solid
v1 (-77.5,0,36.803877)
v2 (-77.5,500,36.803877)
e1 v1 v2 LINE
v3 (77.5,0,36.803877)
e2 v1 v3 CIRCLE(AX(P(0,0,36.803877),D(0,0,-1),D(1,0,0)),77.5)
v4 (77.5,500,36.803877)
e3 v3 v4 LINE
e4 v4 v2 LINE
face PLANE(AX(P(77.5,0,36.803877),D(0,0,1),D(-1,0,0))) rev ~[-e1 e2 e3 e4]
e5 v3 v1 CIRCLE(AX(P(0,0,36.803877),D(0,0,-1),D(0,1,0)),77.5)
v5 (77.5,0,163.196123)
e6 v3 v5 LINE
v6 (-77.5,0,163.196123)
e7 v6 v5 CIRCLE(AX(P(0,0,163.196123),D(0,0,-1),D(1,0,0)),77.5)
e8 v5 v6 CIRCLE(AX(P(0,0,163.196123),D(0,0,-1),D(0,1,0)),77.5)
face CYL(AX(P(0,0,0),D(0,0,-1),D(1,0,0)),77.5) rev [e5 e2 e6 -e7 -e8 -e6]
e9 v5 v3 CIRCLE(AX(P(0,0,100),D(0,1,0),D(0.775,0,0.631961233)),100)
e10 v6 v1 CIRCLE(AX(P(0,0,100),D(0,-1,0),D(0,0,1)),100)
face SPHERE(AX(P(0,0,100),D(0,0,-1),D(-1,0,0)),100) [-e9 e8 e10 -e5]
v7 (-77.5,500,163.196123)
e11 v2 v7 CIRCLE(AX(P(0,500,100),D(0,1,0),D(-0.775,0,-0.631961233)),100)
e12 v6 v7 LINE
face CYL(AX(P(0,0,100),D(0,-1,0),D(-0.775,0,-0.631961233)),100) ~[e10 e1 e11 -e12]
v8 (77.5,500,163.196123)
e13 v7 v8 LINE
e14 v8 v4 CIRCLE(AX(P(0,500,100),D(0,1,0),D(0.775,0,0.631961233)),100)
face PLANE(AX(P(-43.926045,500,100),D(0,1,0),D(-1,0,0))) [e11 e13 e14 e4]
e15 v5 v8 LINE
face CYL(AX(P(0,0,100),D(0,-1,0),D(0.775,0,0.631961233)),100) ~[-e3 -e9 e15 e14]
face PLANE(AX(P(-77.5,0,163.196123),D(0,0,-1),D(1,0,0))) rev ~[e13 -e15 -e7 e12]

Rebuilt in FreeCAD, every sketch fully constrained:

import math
import FreeCAD as App
import Part
import Sketcher
from FreeCAD import Vector
Q = App.Units.Quantity

doc = App.newDocument("Part")
body = doc.addObject("PartDesign::Body", "Body")

# Sketch on XZ plane
sketch1 = body.newObject("Sketcher::SketchObject", "Sketch")
sketch1.AttachmentSupport = (doc.getObject("XZ_Plane"), [""])
sketch1.MapMode = "FlatFace"
sketch1.addGeometry([
    Part.LineSegment(Vector(0, 0, 0), Vector(0, 200, 0)),
    Part.ArcOfCircle(Part.Circle(Vector(0, 100, 0), Vector(0, 0, 1), 100), math.radians(90), math.radians(270)),
], False)
sketch1.addConstraint([
    Sketcher.Constraint("Coincident", 0, 1, 1, 2),
    Sketcher.Constraint("Coincident", 1, 1, 0, 2),
    Sketcher.Constraint("Vertical", 0),
    Sketcher.Constraint("Coincident", 0, 1, -1, 1),
    Sketcher.Constraint("PointOnObject", 1, 3, -2),
    Sketcher.Constraint("Radius", 1, Q("100 mm")),
])
revolution = body.newObject("PartDesign::Revolution", "Revolution")
revolution.Profile = sketch1
revolution.ReferenceAxis = (sketch1, ["V_Axis"])
revolution.Angle = 360

# Sketch on XY plane
sketch2 = body.newObject("Sketcher::SketchObject", "Sketch001")
sketch2.AttachmentSupport = (doc.getObject("XY_Plane"), [""])
sketch2.MapMode = "FlatFace"
sketch2.AttachmentOffset = App.Placement(Vector(0, 0, -25), App.Rotation())
sketch2.addGeometry(Part.Circle(Vector(0, 0, 0), Vector(0, 0, 1), 77.5), False)
sketch2.addConstraint([
    Sketcher.Constraint("Coincident", 0, 3, -1, 1),
    Sketcher.Constraint("Diameter", 0, Q("155 mm")),
])
pocket1 = body.newObject("PartDesign::Pocket", "Pocket")
pocket1.Profile = sketch2
pocket1.Type = "ThroughAll"
pocket1.Reversed = True

# Sketch on XZ plane
sketch3 = body.newObject("Sketcher::SketchObject", "Sketch002")
sketch3.AttachmentSupport = (doc.getObject("XZ_Plane"), [""])
sketch3.MapMode = "FlatFace"
sketch3.addGeometry([
    Part.ArcOfCircle(Part.Circle(Vector(0, 100, 0), Vector(0, 0, 1), 100), math.radians(140.805033), math.radians(219.194967)),
    Part.LineSegment(Vector(-77.5, 163.196123, 0), Vector(77.5, 163.196123, 0)),
    Part.ArcOfCircle(Part.Circle(Vector(0, 100, 0), Vector(0, 0, 1), 100), math.radians(-39.194967), math.radians(39.194967)),
    Part.LineSegment(Vector(77.5, 36.803877, 0), Vector(-77.5, 36.803877, 0)),
], False)
sketch3.addConstraint([
    Sketcher.Constraint("Coincident", 0, 1, 1, 1),
    Sketcher.Constraint("Coincident", 1, 2, 2, 2),
    Sketcher.Constraint("Coincident", 2, 1, 3, 1),
    Sketcher.Constraint("Coincident", 3, 2, 0, 2),
    Sketcher.Constraint("Horizontal", 1),
    Sketcher.Constraint("Horizontal", 3),
    Sketcher.Constraint("Coincident", 2, 3, 0, 3),
    Sketcher.Constraint("Equal", 0, 2),
    Sketcher.Constraint("PointOnObject", 0, 3, -2),
    Sketcher.Constraint("Vertical", 1, 2, 2, 1),
    Sketcher.Constraint("Radius", 0, Q("100 mm")),
    Sketcher.Constraint("DistanceX", 1, 1, 1, 2, Q("155 mm")),
    Sketcher.Constraint("DistanceY", -1, 1, 0, 3, Q("100 mm")),
])
pad1 = body.newObject("PartDesign::Pad", "Pad")
pad1.Profile = sketch3
pad1.Length = 500
pad1.Reversed = True

# Sketch on XY plane
sketch4 = body.newObject("Sketcher::SketchObject", "Sketch003")
sketch4.AttachmentSupport = (doc.getObject("XY_Plane"), [""])
sketch4.MapMode = "FlatFace"
sketch4.addGeometry(Part.Circle(Vector(0, 0, 0), Vector(0, 0, 1), 77.5), False)
sketch4.addConstraint([
    Sketcher.Constraint("Coincident", 0, 3, -1, 1),
    Sketcher.Constraint("Diameter", 0, Q("155 mm")),
])
pocket2 = body.newObject("PartDesign::Pocket", "Pocket001")
pocket2.Profile = sketch4
pocket2.Type = "ThroughAll"
pocket2.Reversed = True

doc.recompute()
